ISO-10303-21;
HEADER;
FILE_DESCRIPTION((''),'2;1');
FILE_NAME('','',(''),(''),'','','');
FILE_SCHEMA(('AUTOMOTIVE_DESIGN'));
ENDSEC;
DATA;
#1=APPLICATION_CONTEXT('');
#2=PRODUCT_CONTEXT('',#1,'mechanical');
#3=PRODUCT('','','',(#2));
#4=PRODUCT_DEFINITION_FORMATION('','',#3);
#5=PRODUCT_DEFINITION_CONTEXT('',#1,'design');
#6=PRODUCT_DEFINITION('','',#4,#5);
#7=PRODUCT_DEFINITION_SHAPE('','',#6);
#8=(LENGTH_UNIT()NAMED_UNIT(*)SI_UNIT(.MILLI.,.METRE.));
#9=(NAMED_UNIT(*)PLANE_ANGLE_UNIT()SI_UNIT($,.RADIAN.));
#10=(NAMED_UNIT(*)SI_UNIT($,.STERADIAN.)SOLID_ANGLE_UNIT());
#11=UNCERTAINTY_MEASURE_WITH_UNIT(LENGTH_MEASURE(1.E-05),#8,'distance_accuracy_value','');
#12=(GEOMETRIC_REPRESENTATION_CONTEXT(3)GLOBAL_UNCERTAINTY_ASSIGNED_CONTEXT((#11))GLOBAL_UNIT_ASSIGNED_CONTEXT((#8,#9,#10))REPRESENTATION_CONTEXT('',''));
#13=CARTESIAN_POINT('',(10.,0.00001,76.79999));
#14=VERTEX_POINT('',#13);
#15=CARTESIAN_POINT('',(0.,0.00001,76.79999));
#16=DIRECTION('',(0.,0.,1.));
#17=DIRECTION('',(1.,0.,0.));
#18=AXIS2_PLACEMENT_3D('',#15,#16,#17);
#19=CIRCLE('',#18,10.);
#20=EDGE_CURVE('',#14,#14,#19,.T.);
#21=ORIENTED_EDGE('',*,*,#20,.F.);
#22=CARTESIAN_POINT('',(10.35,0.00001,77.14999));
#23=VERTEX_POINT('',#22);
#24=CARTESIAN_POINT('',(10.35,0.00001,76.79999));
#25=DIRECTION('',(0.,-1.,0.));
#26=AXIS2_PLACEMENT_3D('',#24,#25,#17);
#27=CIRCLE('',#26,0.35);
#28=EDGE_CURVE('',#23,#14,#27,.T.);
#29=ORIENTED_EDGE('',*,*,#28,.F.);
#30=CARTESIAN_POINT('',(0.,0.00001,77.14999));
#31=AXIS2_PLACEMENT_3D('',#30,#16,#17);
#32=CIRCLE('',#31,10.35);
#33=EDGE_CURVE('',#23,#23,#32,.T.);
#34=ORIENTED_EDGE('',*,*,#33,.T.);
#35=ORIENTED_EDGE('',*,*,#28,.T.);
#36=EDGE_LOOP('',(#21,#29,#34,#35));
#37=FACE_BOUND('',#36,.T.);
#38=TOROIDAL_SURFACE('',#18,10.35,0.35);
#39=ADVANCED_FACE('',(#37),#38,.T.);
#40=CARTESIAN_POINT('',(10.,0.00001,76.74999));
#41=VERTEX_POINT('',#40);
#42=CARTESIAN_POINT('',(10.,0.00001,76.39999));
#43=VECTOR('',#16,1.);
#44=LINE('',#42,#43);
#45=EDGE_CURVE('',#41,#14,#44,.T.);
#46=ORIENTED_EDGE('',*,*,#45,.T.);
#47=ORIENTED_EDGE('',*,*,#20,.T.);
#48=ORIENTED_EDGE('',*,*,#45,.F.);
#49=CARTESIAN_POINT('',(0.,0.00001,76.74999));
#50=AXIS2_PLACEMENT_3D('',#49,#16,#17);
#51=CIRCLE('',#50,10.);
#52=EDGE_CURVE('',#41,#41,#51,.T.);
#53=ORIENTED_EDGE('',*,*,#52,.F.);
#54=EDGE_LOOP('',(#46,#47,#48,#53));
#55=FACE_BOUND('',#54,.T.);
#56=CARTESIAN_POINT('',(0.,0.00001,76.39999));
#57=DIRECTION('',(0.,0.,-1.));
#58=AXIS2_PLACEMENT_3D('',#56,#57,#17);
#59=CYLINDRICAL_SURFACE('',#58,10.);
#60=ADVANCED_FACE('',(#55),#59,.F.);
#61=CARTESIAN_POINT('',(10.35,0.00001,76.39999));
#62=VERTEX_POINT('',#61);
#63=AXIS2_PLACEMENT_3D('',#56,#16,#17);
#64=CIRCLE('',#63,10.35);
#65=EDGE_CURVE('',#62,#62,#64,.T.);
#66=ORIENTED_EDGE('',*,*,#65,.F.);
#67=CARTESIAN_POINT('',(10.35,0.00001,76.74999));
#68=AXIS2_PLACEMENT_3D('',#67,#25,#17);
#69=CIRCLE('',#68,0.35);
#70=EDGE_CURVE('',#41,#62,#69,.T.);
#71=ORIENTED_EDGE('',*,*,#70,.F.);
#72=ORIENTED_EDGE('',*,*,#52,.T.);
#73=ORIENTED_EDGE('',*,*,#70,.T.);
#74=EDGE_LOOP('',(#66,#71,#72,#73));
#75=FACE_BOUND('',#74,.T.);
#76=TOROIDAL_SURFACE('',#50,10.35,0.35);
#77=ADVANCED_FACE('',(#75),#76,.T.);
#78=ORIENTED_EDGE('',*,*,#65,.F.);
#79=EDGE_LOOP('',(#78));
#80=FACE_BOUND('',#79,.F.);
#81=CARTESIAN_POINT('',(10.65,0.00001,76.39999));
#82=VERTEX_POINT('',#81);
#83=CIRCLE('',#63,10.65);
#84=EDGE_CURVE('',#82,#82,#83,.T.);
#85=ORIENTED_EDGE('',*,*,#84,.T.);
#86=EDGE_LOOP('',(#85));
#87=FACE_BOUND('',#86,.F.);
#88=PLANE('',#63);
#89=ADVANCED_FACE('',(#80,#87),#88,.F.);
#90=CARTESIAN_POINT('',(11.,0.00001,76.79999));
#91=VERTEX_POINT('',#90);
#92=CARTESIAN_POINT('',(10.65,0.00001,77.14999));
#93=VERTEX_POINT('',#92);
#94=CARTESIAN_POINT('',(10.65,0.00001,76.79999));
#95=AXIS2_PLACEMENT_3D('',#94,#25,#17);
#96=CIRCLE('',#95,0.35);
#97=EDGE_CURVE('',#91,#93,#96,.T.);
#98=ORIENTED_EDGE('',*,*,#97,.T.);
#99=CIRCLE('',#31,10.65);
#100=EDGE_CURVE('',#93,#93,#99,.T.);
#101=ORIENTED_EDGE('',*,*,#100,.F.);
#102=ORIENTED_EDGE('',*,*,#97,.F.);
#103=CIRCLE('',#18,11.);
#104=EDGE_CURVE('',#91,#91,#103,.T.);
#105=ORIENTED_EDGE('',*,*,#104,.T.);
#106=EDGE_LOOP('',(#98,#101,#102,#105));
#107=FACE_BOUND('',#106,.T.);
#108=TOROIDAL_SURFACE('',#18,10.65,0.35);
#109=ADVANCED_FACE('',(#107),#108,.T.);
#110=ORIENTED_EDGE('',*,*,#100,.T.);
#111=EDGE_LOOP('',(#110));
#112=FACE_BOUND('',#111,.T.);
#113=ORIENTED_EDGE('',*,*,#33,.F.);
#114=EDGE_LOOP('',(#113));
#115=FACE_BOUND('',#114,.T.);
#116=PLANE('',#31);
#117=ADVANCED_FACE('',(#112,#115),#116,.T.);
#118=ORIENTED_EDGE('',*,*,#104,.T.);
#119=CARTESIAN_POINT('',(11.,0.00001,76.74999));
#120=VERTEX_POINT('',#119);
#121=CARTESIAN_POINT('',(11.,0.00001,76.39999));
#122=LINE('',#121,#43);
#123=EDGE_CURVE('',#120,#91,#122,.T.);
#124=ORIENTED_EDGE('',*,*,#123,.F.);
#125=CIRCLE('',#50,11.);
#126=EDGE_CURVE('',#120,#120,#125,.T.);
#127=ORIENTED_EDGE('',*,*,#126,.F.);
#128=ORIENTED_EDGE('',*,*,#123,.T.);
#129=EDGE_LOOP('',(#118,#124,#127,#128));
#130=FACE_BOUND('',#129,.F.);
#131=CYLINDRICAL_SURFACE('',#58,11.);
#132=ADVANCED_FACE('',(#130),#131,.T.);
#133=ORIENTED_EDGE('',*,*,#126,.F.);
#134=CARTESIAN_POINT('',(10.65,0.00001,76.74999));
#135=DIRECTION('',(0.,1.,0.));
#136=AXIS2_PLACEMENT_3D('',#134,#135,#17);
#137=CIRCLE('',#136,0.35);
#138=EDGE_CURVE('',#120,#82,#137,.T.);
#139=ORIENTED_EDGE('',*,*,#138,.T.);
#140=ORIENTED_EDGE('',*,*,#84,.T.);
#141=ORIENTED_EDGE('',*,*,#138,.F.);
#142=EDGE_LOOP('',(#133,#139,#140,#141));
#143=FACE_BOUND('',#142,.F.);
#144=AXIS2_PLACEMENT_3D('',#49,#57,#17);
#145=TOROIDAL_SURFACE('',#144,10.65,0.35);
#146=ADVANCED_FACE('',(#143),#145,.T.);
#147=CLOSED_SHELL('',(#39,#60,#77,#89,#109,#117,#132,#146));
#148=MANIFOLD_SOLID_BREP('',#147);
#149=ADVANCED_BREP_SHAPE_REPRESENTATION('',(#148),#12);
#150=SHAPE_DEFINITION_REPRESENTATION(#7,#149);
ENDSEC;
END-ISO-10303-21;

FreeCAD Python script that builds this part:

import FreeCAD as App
import Part
import Sketcher


def edges_at(feature, points):
    """Names of the edges that pass closest to the given points."""
    edges = feature.Shape.Edges
    near = lambda p: min(range(len(edges)), key=lambda i: edges[i].distToShape(Part.Vertex(*p))[0])
    return sorted({f"Edge{near(p) + 1}" for p in points})

doc = App.newDocument("Part")
params = doc.addObject("Spreadsheet::Sheet", "Params")
for row, (alias, value) in enumerate([
    ("sketch1_diameter", "22 mm"),
    ("sketch1_diameter2", "20 mm"),
    ("pad1_length", "0.75 mm"),
    ("fillet_radius", "0.35 mm"),
    ("fillet2_radius", "0.35 mm"),
    ("fillet3_radius", "0.35 mm"),
    ("fillet4_radius", "0.35 mm"),
], start=1):
    params.set(f"A{row}", alias)
    params.set(f"B{row}", "=" + value)
    params.setAlias(f"B{row}", alias)

body = doc.addObject("PartDesign::Body", "Body")

sketch1 = doc.addObject("Sketcher::SketchObject", "Sketch")
body.addObject(sketch1)
sketch1.AttachmentSupport = (doc.XY_Plane, [""])
sketch1.MapMode = "FlatFace"
sketch1.addGeometry(Part.Circle(App.Vector(0, 0, 0), App.Vector(0, 0, 1), 11), False)
sketch1.addGeometry(Part.Circle(App.Vector(0, 0, 0), App.Vector(0, 0, 1), 10), False)
sketch1.addConstraint(Sketcher.Constraint("Coincident", 0, 3, -1, 1))
sketch1.addConstraint(Sketcher.Constraint("Coincident", 1, 3, -1, 1))
sketch1.addConstraint(Sketcher.Constraint("Diameter", 0, 22.0))
sketch1.addConstraint(Sketcher.Constraint("Diameter", 1, 20.0))
sketch1.setExpression("Constraints[2]", "Params.sketch1_diameter")
sketch1.setExpression("Constraints[3]", "Params.sketch1_diameter2")
pad1 = doc.addObject("PartDesign::Pad", "Pad")
body.addObject(pad1)
pad1.Profile = sketch1
pad1.setExpression("Length", "Params.pad1_length")
doc.recompute()

fillet = doc.addObject("PartDesign::Fillet", "Fillet")
body.addObject(fillet)
fillet.Base = (pad1, edges_at(pad1, [(-11, 0, 0.75)]))
fillet.setExpression("Radius", "Params.fillet_radius")
doc.recompute()

fillet2 = doc.addObject("PartDesign::Fillet", "Fillet001")
body.addObject(fillet2)
fillet2.Base = (fillet, edges_at(fillet, [(-11, 0, 0)]))
fillet2.setExpression("Radius", "Params.fillet2_radius")
doc.recompute()

fillet3 = doc.addObject("PartDesign::Fillet", "Fillet002")
body.addObject(fillet3)
fillet3.Base = (fillet2, edges_at(fillet2, [(-10, 0, 0.75)]))
fillet3.setExpression("Radius", "Params.fillet3_radius")
doc.recompute()

fillet4 = doc.addObject("PartDesign::Fillet", "Fillet003")
body.addObject(fillet4)
fillet4.Base = (fillet3, edges_at(fillet3, [(-10, 0, 0)]))
fillet4.setExpression("Radius", "Params.fillet4_radius")
body2 = doc.addObject("PartDesign::Body", "Body001")
doc.recompute()

body.Placement = App.Placement(App.Vector(0, 0.00001, 76.39999), App.Rotation(App.Vector(0, 0, 1), 0))
boolean = doc.addObject("PartDesign::Boolean", "Boolean")
body2.addObject(boolean)
boolean.Type = "Fuse"
boolean.addObjects([body])

doc.recompute()
